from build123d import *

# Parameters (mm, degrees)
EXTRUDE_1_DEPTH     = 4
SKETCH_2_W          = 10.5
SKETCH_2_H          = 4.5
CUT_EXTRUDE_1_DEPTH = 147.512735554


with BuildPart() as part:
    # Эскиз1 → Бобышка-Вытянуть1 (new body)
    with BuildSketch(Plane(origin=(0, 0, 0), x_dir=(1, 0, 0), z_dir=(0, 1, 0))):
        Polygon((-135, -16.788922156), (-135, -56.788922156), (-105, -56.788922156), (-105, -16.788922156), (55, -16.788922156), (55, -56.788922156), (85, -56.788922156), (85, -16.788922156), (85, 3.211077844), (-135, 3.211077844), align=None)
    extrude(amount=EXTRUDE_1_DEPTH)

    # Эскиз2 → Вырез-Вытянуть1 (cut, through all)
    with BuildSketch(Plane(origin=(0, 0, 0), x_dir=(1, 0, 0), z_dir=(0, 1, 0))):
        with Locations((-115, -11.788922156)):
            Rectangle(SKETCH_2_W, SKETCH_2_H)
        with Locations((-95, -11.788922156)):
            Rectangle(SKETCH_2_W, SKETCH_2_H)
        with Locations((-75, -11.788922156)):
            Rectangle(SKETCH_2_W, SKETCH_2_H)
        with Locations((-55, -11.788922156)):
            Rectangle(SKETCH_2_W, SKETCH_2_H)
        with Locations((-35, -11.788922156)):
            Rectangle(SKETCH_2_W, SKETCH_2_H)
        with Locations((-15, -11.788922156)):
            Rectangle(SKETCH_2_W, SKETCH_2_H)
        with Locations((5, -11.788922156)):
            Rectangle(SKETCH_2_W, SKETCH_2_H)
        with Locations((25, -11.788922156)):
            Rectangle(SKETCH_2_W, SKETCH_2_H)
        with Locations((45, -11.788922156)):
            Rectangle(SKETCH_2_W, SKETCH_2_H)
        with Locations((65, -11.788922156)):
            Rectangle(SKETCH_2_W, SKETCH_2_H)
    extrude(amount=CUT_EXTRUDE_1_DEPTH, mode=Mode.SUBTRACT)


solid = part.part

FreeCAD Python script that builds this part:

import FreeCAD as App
import Part
import Sketcher
from FreeCAD import Vector
Q = App.Units.Quantity

doc = App.newDocument("Part")
body = doc.addObject("PartDesign::Body", "Body")

# Sketch on XZ plane
sketch1 = body.newObject("Sketcher::SketchObject", "Sketch")
sketch1.AttachmentSupport = (doc.getObject("XZ_Plane"), [""])
sketch1.MapMode = "FlatFace"
sketch1.addGeometry([
    Part.LineSegment(Vector(-135, 57, 0), Vector(-105, 57, 0)),  # 0
    Part.LineSegment(Vector(-105, 57, 0), Vector(-105, 17, 0)),  # 1
    Part.LineSegment(Vector(-105, 17, 0), Vector(55, 17, 0)),  # 2
    Part.LineSegment(Vector(55, 17, 0), Vector(55, 57, 0)),  # 3
    Part.LineSegment(Vector(55, 57, 0), Vector(85, 57, 0)),  # 4
    Part.LineSegment(Vector(85, 57, 0), Vector(85, -3, 0)),  # 5
    Part.LineSegment(Vector(85, -3, 0), Vector(-135, -3, 0)),  # 6
    Part.LineSegment(Vector(-135, -3, 0), Vector(-135, 57, 0)),  # 7
], False)
sketch1.addConstraint([
    Sketcher.Constraint("Coincident", 0, 2, 1, 1),
    Sketcher.Constraint("Coincident", 1, 2, 2, 1),
    Sketcher.Constraint("Coincident", 2, 2, 3, 1),
    Sketcher.Constraint("Coincident", 3, 2, 4, 1),
    Sketcher.Constraint("Coincident", 4, 2, 5, 1),
    Sketcher.Constraint("Coincident", 5, 2, 6, 1),
    Sketcher.Constraint("Coincident", 6, 2, 7, 1),
    Sketcher.Constraint("Coincident", 7, 2, 0, 1),
    Sketcher.Constraint("Horizontal", 0),
    Sketcher.Constraint("Vertical", 1),
    Sketcher.Constraint("Horizontal", 2),
    Sketcher.Constraint("Vertical", 3),
    Sketcher.Constraint("Horizontal", 4),
    Sketcher.Constraint("Vertical", 5),
    Sketcher.Constraint("Horizontal", 6),
    Sketcher.Constraint("Vertical", 7),
    Sketcher.Constraint("Horizontal", 0, 2, 3, 2),
    Sketcher.Constraint("Equal", 0, 4),
    Sketcher.Constraint("DistanceX", 0, 1, 0, 2, Q("30 mm")),
    Sketcher.Constraint("DistanceX", 2, 1, 2, 2, Q("160 mm")),
    Sketcher.Constraint("DistanceY", 1, 2, 1, 1, Q("40 mm")),
    Sketcher.Constraint("DistanceY", 5, 2, 5, 1, Q("60 mm")),
    Sketcher.Constraint("DistanceX", 0, 2, -1, 1, Q("105 mm")),
    Sketcher.Constraint("DistanceY", -1, 1, 0, 2, Q("56.788922 mm")),
])
pad1 = body.newObject("PartDesign::Pad", "Pad")
pad1.Profile = sketch1
pad1.Length = 4
pad1.Reversed = True

# Sketch on XZ plane
sketch2 = body.newObject("Sketcher::SketchObject", "Sketch001")
sketch2.AttachmentSupport = (doc.getObject("XZ_Plane"), [""])
sketch2.MapMode = "FlatFace"
sketch2.addGeometry([
    Part.LineSegment(Vector(-120.2, 9.5, 0), Vector(-120.2, 14, 0)),  # 0
    Part.LineSegment(Vector(-120.2, 14, 0), Vector(-109.8, 14, 0)),  # 1
    Part.LineSegment(Vector(-109.8, 14, 0), Vector(-109.8, 9.5, 0)),  # 2
    Part.LineSegment(Vector(-109.8, 9.5, 0), Vector(-120.2, 9.5, 0)),  # 3
    Part.LineSegment(Vector(-100.2, 9.5, 0), Vector(-100.2, 14, 0)),  # 4
    Part.LineSegment(Vector(-100.2, 14, 0), Vector(-89.8, 14, 0)),  # 5
    Part.LineSegment(Vector(-89.8, 14, 0), Vector(-89.8, 9.5, 0)),  # 6
    Part.LineSegment(Vector(-89.8, 9.5, 0), Vector(-100.2, 9.5, 0)),  # 7
    Part.LineSegment(Vector(-80.2, 9.5, 0), Vector(-80.2, 14, 0)),  # 8
    Part.LineSegment(Vector(-80.2, 14, 0), Vector(-69.8, 14, 0)),  # 9
    Part.LineSegment(Vector(-69.8, 14, 0), Vector(-69.8, 9.5, 0)),  # 10
    Part.LineSegment(Vector(-69.8, 9.5, 0), Vector(-80.2, 9.5, 0)),  # 11
    Part.LineSegment(Vector(-60.2, 9.5, 0), Vector(-60.2, 14, 0)),  # 12
    Part.LineSegment(Vector(-60.2, 14, 0), Vector(-49.8, 14, 0)),  # 13
    Part.LineSegment(Vector(-49.8, 14, 0), Vector(-49.8, 9.5, 0)),  # 14
    Part.LineSegment(Vector(-49.8, 9.5, 0), Vector(-60.2, 9.5, 0)),  # 15
    Part.LineSegment(Vector(-40.2, 9.5, 0), Vector(-40.2, 14, 0)),  # 16
    Part.LineSegment(Vector(-40.2, 14, 0), Vector(-29.8, 14, 0)),  # 17
    Part.LineSegment(Vector(-29.8, 14, 0), Vector(-29.8, 9.5, 0)),  # 18
    Part.LineSegment(Vector(-29.8, 9.5, 0), Vector(-40.2, 9.5, 0)),  # 19
    Part.LineSegment(Vector(-20.2, 9.5, 0), Vector(-20.2, 14, 0)),  # 20
    Part.LineSegment(Vector(-20.2, 14, 0), Vector(-9.8, 14, 0)),  # 21
    Part.LineSegment(Vector(-9.8, 14, 0), Vector(-9.8, 9.5, 0)),  # 22
    Part.LineSegment(Vector(-9.8, 9.5, 0), Vector(-20.2, 9.5, 0)),  # 23
    Part.LineSegment(Vector(-0.2, 9.5, 0), Vector(-0.2, 14, 0)),  # 24
    Part.LineSegment(Vector(-0.2, 14, 0), Vector(10.2, 14, 0)),  # 25
    Part.LineSegment(Vector(10.2, 14, 0), Vector(10.2, 9.5, 0)),  # 26
    Part.LineSegment(Vector(10.2, 9.5, 0), Vector(-0.2, 9.5, 0)),  # 27
    Part.LineSegment(Vector(19.8, 9.5, 0), Vector(19.8, 14, 0)),  # 28
    Part.LineSegment(Vector(19.8, 14, 0), Vector(30.2, 14, 0)),  # 29
    Part.LineSegment(Vector(30.2, 14, 0), Vector(30.2, 9.5, 0)),  # 30
    Part.LineSegment(Vector(30.2, 9.5, 0), Vector(19.8, 9.5, 0)),  # 31
    Part.LineSegment(Vector(39.8, 9.5, 0), Vector(39.8, 14, 0)),  # 32
    Part.LineSegment(Vector(39.8, 14, 0), Vector(50.2, 14, 0)),  # 33
    Part.LineSegment(Vector(50.2, 14, 0), Vector(50.2, 9.5, 0)),  # 34
    Part.LineSegment(Vector(50.2, 9.5, 0), Vector(39.8, 9.5, 0)),  # 35
    Part.LineSegment(Vector(59.8, 9.5, 0), Vector(59.8, 14, 0)),  # 36
    Part.LineSegment(Vector(59.8, 14, 0), Vector(70.2, 14, 0)),  # 37
    Part.LineSegment(Vector(70.2, 14, 0), Vector(70.2, 9.5, 0)),  # 38
    Part.LineSegment(Vector(70.2, 9.5, 0), Vector(59.8, 9.5, 0)),  # 39
], False)
sketch2.addConstraint([
    Sketcher.Constraint("Coincident", 0, 2, 1, 1),
    Sketcher.Constraint("Coincident", 1, 2, 2, 1),
    Sketcher.Constraint("Coincident", 2, 2, 3, 1),
    Sketcher.Constraint("Coincident", 3, 2, 0, 1),
    Sketcher.Constraint("Coincident", 4, 2, 5, 1),
    Sketcher.Constraint("Coincident", 5, 2, 6, 1),
    Sketcher.Constraint("Coincident", 6, 2, 7, 1),
    Sketcher.Constraint("Coincident", 7, 2, 4, 1),
    Sketcher.Constraint("Coincident", 8, 2, 9, 1),
    Sketcher.Constraint("Coincident", 9, 2, 10, 1),
    Sketcher.Constraint("Coincident", 10, 2, 11, 1),
    Sketcher.Constraint("Coincident", 11, 2, 8, 1),
    Sketcher.Constraint("Coincident", 12, 2, 13, 1),
    Sketcher.Constraint("Coincident", 13, 2, 14, 1),
    Sketcher.Constraint("Coincident", 14, 2, 15, 1),
    Sketcher.Constraint("Coincident", 15, 2, 12, 1),
    Sketcher.Constraint("Coincident", 16, 2, 17, 1),
    Sketcher.Constraint("Coincident", 17, 2, 18, 1),
    Sketcher.Constraint("Coincident", 18, 2, 19, 1),
    Sketcher.Constraint("Coincident", 19, 2, 16, 1),
    Sketcher.Constraint("Coincident", 20, 2, 21, 1),
    Sketcher.Constraint("Coincident", 21, 2, 22, 1),
    Sketcher.Constraint("Coincident", 22, 2, 23, 1),
    Sketcher.Constraint("Coincident", 23, 2, 20, 1),
    Sketcher.Constraint("Coincident", 24, 2, 25, 1),
    Sketcher.Constraint("Coincident", 25, 2, 26, 1),
    Sketcher.Constraint("Coincident", 26, 2, 27, 1),
    Sketcher.Constraint("Coincident", 27, 2, 24, 1),
    Sketcher.Constraint("Coincident", 28, 2, 29, 1),
    Sketcher.Constraint("Coincident", 29, 2, 30, 1),
    Sketcher.Constraint("Coincident", 30, 2, 31, 1),
    Sketcher.Constraint("Coincident", 31, 2, 28, 1),
    Sketcher.Constraint("Coincident", 32, 2, 33, 1),
    Sketcher.Constraint("Coincident", 33, 2, 34, 1),
    Sketcher.Constraint("Coincident", 34, 2, 35, 1),
    Sketcher.Constraint("Coincident", 35, 2, 32, 1),
    Sketcher.Constraint("Coincident", 36, 2, 37, 1),
    Sketcher.Constraint("Coincident", 37, 2, 38, 1),
    Sketcher.Constraint("Coincident", 38, 2, 39, 1),
    Sketcher.Constraint("Coincident", 39, 2, 36, 1),
    Sketcher.Constraint("Vertical", 0),
    Sketcher.Constraint("Horizontal", 1),
    Sketcher.Constraint("Vertical", 2),
    Sketcher.Constraint("Horizontal", 3),
    Sketcher.Constraint("Vertical", 4),
    Sketcher.Constraint("Horizontal", 5),
    Sketcher.Constraint("Vertical", 6),
    Sketcher.Constraint("Horizontal", 7),
    Sketcher.Constraint("Vertical", 8),
    Sketcher.Constraint("Horizontal", 9),
    Sketcher.Constraint("Vertical", 10),
    Sketcher.Constraint("Horizontal", 11),
    Sketcher.Constraint("Vertical", 12),
    Sketcher.Constraint("Horizontal", 13),
    Sketcher.Constraint("Vertical", 14),
    Sketcher.Constraint("Horizontal", 15),
    Sketcher.Constraint("Vertical", 16),
    Sketcher.Constraint("Horizontal", 17),
    Sketcher.Constraint("Vertical", 18),
    Sketcher.Constraint("Horizontal", 19),
    Sketcher.Constraint("Vertical", 20),
    Sketcher.Constraint("Horizontal", 21),
    Sketcher.Constraint("Vertical", 22),
    Sketcher.Constraint("Horizontal", 23),
    Sketcher.Constraint("Vertical", 24),
    Sketcher.Constraint("Horizontal", 25),
    Sketcher.Constraint("Vertical", 26),
    Sketcher.Constraint("Horizontal", 27),
    Sketcher.Constraint("Vertical", 28),
    Sketcher.Constraint("Horizontal", 29),
    Sketcher.Constraint("Vertical", 30),
    Sketcher.Constraint("Horizontal", 31),
    Sketcher.Constraint("Vertical", 32),
    Sketcher.Constraint("Horizontal", 33),
    Sketcher.Constraint("Vertical", 34),
    Sketcher.Constraint("Horizontal", 35),
    Sketcher.Constraint("Vertical", 36),
    Sketcher.Constraint("Horizontal", 37),
    Sketcher.Constraint("Vertical", 38),
    Sketcher.Constraint("Horizontal", 39),
    Sketcher.Constraint("Horizontal", 1, 2, 4, 2),
    Sketcher.Constraint("Horizontal", 3, 2, 6, 2),
    Sketcher.Constraint("Horizontal", 5, 2, 8, 2),
    Sketcher.Constraint("Horizontal", 7, 2, 10, 2),
    Sketcher.Constraint("Horizontal", 9, 2, 12, 2),
    Sketcher.Constraint("Horizontal", 11, 2, 14, 2),
    Sketcher.Constraint("Horizontal", 13, 2, 16, 2),
    Sketcher.Constraint("Horizontal", 15, 2, 18, 2),
    Sketcher.Constraint("Horizontal", 17, 2, 20, 2),
    Sketcher.Constraint("Horizontal", 19, 2, 22, 2),
    Sketcher.Constraint("Horizontal", 21, 2, 24, 2),
    Sketcher.Constraint("Horizontal", 23, 2, 26, 2),
    Sketcher.Constraint("Horizontal", 25, 2, 28, 2),
    Sketcher.Constraint("Horizontal", 27, 2, 30, 2),
    Sketcher.Constraint("Horizontal", 29, 2, 32, 2),
    Sketcher.Constraint("Horizontal", 31, 2, 34, 2),
    Sketcher.Constraint("Horizontal", 33, 2, 36, 2),
    Sketcher.Constraint("Horizontal", 35, 2, 38, 2),
    Sketcher.Constraint("Equal", 3, 5),
    Sketcher.Constraint("Equal", 7, 9),
    Sketcher.Constraint("Equal", 11, 13),
    Sketcher.Constraint("Equal", 15, 17),
    Sketcher.Constraint("Equal", 19, 21),
    Sketcher.Constraint("Equal", 23, 25),
    Sketcher.Constraint("Equal", 27, 29),
    Sketcher.Constraint("Equal", 31, 33),
    Sketcher.Constraint("Equal", 35, 37),
    Sketcher.Constraint("DistanceX", 1, 1, 1, 2, Q("10.5 mm")),
    Sketcher.Constraint("DistanceY", 0, 1, 0, 2, Q("4.5 mm")),
    Sketcher.Constraint("DistanceX", 0, 2, 4, 2, Q("20 mm")),
    Sketcher.Constraint("DistanceX", 4, 2, 8, 2, Q("20 mm")),
    Sketcher.Constraint("DistanceX", 8, 2, 12, 2, Q("20 mm")),
    Sketcher.Constraint("DistanceX", 12, 2, 16, 2, Q("20 mm")),
    Sketcher.Constraint("DistanceX", 16, 2, 20, 2, Q("20 mm")),
    Sketcher.Constraint("DistanceX", 20, 2, 24, 2, Q("20 mm")),
    Sketcher.Constraint("DistanceX", 24, 2, 28, 2, Q("20 mm")),
    Sketcher.Constraint("DistanceX", 28, 2, 32, 2, Q("20 mm")),
    Sketcher.Constraint("DistanceX", 32, 2, 36, 2, Q("20 mm")),
    Sketcher.Constraint("DistanceX", 0, 2, -1, 1, Q("120.25 mm")),
    Sketcher.Constraint("DistanceY", -1, 1, 0, 2, Q("14.038922 mm")),
])
pocket1 = body.newObject("PartDesign::Pocket", "Pocket")
pocket1.Profile = sketch2
pocket1.Type = "ThroughAll"

doc.recompute()
